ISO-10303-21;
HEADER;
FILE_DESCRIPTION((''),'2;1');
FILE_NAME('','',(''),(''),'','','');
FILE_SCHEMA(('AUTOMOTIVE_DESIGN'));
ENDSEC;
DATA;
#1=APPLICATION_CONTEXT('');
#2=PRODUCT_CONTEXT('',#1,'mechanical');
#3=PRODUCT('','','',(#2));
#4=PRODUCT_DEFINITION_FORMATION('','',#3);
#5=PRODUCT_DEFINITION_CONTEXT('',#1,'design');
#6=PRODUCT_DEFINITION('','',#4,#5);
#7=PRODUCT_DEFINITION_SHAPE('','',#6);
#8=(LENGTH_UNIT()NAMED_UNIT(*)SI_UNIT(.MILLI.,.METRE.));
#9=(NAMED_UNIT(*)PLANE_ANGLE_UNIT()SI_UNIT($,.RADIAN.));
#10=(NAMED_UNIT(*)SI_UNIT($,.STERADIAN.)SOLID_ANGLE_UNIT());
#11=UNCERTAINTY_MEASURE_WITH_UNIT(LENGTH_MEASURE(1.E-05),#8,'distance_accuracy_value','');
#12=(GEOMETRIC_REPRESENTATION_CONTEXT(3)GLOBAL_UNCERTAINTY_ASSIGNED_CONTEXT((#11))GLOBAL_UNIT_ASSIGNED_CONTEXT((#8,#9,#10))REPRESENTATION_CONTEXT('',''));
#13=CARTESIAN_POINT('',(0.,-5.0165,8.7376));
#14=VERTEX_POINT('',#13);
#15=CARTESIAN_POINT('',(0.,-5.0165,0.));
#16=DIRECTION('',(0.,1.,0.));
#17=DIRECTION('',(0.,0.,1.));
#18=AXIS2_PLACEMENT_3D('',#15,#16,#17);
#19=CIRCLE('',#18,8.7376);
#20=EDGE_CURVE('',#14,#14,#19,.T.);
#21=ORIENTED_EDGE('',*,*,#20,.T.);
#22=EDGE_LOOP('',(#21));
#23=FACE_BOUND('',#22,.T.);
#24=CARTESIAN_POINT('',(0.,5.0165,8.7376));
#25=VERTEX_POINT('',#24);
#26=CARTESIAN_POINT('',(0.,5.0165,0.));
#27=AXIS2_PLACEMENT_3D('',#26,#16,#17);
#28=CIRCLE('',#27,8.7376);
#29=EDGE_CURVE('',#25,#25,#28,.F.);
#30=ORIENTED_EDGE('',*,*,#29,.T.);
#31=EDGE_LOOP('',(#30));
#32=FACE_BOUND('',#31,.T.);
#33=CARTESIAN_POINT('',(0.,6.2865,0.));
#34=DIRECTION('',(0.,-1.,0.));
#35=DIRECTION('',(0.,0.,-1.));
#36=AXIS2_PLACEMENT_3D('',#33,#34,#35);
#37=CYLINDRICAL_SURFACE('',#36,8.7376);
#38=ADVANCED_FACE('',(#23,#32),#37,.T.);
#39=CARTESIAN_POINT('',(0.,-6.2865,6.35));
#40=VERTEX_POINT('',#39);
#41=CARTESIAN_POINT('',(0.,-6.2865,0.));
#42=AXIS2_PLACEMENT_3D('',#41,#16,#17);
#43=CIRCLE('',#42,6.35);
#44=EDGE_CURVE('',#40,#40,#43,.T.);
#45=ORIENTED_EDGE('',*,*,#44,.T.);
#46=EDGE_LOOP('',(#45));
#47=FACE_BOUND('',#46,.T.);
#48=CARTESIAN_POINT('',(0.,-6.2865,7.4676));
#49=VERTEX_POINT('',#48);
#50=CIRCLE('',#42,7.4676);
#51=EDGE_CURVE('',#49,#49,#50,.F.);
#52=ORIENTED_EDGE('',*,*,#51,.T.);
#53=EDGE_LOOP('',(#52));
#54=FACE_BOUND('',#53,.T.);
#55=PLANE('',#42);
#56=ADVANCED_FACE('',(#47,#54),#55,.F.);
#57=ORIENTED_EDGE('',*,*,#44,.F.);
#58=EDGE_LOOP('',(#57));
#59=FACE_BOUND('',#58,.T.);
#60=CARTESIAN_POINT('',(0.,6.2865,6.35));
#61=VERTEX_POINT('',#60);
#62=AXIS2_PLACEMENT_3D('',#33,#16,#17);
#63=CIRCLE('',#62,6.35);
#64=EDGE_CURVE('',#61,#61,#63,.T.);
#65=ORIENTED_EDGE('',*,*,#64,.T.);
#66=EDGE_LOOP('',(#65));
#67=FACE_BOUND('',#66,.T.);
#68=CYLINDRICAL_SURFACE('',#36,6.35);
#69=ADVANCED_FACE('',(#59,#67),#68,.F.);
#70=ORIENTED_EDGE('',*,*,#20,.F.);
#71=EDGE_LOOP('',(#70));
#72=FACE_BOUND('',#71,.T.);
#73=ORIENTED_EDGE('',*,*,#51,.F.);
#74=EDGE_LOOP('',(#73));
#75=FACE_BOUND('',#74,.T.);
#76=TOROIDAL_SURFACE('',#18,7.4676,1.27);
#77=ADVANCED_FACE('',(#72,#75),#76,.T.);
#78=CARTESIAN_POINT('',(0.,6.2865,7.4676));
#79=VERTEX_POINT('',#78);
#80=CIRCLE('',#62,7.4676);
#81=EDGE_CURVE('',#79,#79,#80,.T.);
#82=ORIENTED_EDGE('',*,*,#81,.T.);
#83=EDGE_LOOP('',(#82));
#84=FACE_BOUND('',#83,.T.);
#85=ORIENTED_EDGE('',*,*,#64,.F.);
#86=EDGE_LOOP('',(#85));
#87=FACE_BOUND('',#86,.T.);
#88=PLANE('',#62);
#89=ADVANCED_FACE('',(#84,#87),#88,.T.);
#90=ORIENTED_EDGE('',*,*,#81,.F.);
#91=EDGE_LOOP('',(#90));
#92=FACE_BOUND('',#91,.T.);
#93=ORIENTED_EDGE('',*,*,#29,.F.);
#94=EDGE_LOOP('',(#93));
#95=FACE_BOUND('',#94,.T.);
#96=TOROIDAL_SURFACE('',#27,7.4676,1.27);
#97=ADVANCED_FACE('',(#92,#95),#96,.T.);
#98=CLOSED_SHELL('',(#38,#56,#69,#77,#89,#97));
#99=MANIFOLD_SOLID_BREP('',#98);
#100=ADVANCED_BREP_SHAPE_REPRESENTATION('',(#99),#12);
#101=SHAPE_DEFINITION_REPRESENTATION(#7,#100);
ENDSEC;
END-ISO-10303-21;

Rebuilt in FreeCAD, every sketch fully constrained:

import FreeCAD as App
import Part
import Sketcher

V = App.Vector
Q = App.Units.Quantity


def edges_at(feature, points):
    """Names of the edges that pass closest to the given points."""
    edges = feature.Shape.Edges
    near = lambda p: min(range(len(edges)), key=lambda i: edges[i].distToShape(Part.Vertex(*p))[0])
    return sorted({f"Edge{near(p) + 1}" for p in points})

doc = App.newDocument("Part")
body = doc.addObject("PartDesign::Body", "Body")

# Sketch on XZ plane
sketch1 = body.newObject("Sketcher::SketchObject", "Sketch")
sketch1.AttachmentSupport = (doc.getObject("XZ_Plane"), [""])
sketch1.MapMode = "FlatFace"
sketch1.addGeometry([
    Part.Circle(V(0, 0, 0), V(0, 0, 1), 8.7376),
    Part.Circle(V(0, 0, 0), V(0, 0, 1), 6.35),
], False)
sketch1.addConstraint([
    Sketcher.Constraint("Coincident", 0, 3, -1, 1),
    Sketcher.Constraint("Coincident", 1, 3, -1, 1),
    Sketcher.Constraint("Diameter", 1, Q("0.5 in")),
    Sketcher.Constraint("Diameter", 0, Q("0.688 in")),
])
pad1 = body.newObject("PartDesign::Pad", "Pad")
pad1.Profile = sketch1
pad1.Length = Q("0.495 in")
pad1.Midplane = True
doc.recompute()

fillet = body.newObject("PartDesign::Fillet", "Fillet")
fillet.Base = (pad1, edges_at(pad1, [(-8.738, -6.287, 0), (-8.738, 6.287, 0)]))
fillet.Radius = Q("0.05 in")

doc.recompute()
